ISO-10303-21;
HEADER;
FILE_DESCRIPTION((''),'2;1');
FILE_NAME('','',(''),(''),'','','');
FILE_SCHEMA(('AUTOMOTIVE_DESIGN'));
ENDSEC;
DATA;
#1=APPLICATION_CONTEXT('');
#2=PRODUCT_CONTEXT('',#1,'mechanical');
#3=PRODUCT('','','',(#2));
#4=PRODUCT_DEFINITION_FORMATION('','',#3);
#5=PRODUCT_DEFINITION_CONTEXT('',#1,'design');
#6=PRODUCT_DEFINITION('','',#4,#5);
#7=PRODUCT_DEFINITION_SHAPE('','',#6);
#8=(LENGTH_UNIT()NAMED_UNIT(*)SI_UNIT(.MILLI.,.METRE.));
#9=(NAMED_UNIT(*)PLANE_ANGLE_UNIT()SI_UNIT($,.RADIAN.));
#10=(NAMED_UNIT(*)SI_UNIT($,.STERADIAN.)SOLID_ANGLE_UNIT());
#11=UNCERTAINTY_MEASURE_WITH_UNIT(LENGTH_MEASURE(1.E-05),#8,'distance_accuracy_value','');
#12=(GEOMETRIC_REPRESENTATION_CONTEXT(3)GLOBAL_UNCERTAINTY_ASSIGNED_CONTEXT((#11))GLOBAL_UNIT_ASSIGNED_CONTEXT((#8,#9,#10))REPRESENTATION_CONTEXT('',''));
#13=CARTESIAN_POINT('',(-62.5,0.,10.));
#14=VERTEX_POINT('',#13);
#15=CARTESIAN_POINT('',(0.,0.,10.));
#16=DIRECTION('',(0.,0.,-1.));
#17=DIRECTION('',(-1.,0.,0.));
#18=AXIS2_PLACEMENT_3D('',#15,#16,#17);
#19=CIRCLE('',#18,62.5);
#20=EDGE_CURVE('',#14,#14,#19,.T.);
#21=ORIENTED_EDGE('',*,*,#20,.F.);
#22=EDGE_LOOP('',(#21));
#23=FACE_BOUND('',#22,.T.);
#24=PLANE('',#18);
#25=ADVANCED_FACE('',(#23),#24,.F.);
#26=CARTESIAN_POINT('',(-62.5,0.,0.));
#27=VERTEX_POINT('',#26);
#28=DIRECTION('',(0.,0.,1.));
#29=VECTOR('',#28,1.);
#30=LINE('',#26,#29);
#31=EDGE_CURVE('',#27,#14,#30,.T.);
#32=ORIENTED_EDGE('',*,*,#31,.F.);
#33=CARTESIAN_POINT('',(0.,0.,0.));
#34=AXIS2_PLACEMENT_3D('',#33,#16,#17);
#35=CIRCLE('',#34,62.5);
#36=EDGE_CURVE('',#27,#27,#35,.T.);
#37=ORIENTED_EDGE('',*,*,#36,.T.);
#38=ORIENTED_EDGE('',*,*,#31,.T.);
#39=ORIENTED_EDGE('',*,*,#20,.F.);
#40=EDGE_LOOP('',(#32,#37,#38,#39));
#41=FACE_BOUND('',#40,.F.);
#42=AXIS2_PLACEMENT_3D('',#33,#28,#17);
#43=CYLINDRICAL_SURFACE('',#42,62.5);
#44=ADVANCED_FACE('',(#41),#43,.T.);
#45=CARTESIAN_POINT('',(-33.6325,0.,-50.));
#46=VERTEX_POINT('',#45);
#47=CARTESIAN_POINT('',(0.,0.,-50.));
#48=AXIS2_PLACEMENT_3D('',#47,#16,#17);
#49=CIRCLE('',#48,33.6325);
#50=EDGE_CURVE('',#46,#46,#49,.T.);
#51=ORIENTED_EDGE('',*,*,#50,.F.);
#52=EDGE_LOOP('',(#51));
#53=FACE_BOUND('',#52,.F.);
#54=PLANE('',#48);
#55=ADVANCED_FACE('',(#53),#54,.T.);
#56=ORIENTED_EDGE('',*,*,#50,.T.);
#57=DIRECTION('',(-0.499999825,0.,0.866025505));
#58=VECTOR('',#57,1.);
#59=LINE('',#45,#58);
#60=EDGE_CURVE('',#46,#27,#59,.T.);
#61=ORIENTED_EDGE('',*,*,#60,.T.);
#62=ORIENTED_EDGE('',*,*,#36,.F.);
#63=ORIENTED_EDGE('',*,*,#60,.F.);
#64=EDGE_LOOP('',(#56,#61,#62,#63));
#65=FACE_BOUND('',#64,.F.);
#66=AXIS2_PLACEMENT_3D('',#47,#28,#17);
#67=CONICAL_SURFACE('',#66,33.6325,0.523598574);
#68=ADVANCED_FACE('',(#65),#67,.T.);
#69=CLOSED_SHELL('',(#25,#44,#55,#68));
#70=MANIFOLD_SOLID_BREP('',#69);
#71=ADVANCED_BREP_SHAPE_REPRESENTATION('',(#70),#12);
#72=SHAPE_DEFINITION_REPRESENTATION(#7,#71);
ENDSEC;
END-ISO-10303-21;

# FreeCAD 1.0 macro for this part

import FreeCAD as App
import Part
import Sketcher

V = App.Vector
Q = App.Units.Quantity

doc = App.newDocument("Part")
params = doc.addObject("Spreadsheet::Sheet", "Params")
for row, (alias, value) in enumerate([
    ("sketch1_height", "60 mm"),
    ("sketch1_height2", "10 mm"),
    ("sketch1_width", "62.5 mm"),
    ("revolution_angle", "360 deg"),
], start=1):
    params.set(f"A{row}", alias)
    params.set(f"B{row}", "=" + value)
    params.setAlias(f"B{row}", alias)

body = doc.addObject("PartDesign::Body", "Body")

# Sketch on XZ plane
sketch1 = body.newObject("Sketcher::SketchObject", "Sketch")
sketch1.AttachmentSupport = (doc.getObject("XZ_Plane"), [""])
sketch1.MapMode = "FlatFace"
sketch1.addGeometry(Part.LineSegment(V(0, -50, 0), V(0, 10, 0)), False)
sketch1.addGeometry(Part.LineSegment(V(0, 10, 0), V(-62, 10, 0)), False)
sketch1.addGeometry(Part.LineSegment(V(-62, 10, 0), V(-62, 0, 0)), False)
sketch1.addGeometry(Part.LineSegment(V(-62, 0, 0), V(-34, -50, 0)), False)
sketch1.addGeometry(Part.LineSegment(V(-34, -50, 0), V(0, -50, 0)), False)
sketch1.addConstraint(Sketcher.Constraint("Coincident", 0, 2, 1, 1))
sketch1.addConstraint(Sketcher.Constraint("Coincident", 1, 2, 2, 1))
sketch1.addConstraint(Sketcher.Constraint("Coincident", 2, 2, 3, 1))
sketch1.addConstraint(Sketcher.Constraint("Coincident", 3, 2, 4, 1))
sketch1.addConstraint(Sketcher.Constraint("Coincident", 4, 2, 0, 1))
sketch1.addConstraint(Sketcher.Constraint("Vertical", 0))
sketch1.addConstraint(Sketcher.Constraint("Horizontal", 1))
sketch1.addConstraint(Sketcher.Constraint("Vertical", 2))
sketch1.addConstraint(Sketcher.Constraint("Horizontal", 4))
sketch1.addConstraint(Sketcher.Constraint("PointOnObject", 0, 2, -2))
sketch1.addConstraint(Sketcher.Constraint("PointOnObject", 2, 2, -1))
sketch1.addConstraint(Sketcher.Constraint("DistanceY", 0, 1, 0, 2, 60.0))
sketch1.addConstraint(Sketcher.Constraint("DistanceY", 2, 2, 2, 1, 10.0))
sketch1.addConstraint(Sketcher.Constraint("Angle", 3, Q("-60 deg")))
sketch1.addConstraint(Sketcher.Constraint("DistanceX", 1, 2, 1, 1, 62.5))
sketch1.setExpression("Constraints[11]", "Params.sketch1_height")
sketch1.setExpression("Constraints[12]", "Params.sketch1_height2")
sketch1.setExpression("Constraints[14]", "Params.sketch1_width")
revolution = body.newObject("PartDesign::Revolution", "Revolution")
revolution.Profile = sketch1
revolution.ReferenceAxis = (sketch1, ["V_Axis"])
revolution.setExpression("Angle", "Params.revolution_angle")

doc.recompute()
